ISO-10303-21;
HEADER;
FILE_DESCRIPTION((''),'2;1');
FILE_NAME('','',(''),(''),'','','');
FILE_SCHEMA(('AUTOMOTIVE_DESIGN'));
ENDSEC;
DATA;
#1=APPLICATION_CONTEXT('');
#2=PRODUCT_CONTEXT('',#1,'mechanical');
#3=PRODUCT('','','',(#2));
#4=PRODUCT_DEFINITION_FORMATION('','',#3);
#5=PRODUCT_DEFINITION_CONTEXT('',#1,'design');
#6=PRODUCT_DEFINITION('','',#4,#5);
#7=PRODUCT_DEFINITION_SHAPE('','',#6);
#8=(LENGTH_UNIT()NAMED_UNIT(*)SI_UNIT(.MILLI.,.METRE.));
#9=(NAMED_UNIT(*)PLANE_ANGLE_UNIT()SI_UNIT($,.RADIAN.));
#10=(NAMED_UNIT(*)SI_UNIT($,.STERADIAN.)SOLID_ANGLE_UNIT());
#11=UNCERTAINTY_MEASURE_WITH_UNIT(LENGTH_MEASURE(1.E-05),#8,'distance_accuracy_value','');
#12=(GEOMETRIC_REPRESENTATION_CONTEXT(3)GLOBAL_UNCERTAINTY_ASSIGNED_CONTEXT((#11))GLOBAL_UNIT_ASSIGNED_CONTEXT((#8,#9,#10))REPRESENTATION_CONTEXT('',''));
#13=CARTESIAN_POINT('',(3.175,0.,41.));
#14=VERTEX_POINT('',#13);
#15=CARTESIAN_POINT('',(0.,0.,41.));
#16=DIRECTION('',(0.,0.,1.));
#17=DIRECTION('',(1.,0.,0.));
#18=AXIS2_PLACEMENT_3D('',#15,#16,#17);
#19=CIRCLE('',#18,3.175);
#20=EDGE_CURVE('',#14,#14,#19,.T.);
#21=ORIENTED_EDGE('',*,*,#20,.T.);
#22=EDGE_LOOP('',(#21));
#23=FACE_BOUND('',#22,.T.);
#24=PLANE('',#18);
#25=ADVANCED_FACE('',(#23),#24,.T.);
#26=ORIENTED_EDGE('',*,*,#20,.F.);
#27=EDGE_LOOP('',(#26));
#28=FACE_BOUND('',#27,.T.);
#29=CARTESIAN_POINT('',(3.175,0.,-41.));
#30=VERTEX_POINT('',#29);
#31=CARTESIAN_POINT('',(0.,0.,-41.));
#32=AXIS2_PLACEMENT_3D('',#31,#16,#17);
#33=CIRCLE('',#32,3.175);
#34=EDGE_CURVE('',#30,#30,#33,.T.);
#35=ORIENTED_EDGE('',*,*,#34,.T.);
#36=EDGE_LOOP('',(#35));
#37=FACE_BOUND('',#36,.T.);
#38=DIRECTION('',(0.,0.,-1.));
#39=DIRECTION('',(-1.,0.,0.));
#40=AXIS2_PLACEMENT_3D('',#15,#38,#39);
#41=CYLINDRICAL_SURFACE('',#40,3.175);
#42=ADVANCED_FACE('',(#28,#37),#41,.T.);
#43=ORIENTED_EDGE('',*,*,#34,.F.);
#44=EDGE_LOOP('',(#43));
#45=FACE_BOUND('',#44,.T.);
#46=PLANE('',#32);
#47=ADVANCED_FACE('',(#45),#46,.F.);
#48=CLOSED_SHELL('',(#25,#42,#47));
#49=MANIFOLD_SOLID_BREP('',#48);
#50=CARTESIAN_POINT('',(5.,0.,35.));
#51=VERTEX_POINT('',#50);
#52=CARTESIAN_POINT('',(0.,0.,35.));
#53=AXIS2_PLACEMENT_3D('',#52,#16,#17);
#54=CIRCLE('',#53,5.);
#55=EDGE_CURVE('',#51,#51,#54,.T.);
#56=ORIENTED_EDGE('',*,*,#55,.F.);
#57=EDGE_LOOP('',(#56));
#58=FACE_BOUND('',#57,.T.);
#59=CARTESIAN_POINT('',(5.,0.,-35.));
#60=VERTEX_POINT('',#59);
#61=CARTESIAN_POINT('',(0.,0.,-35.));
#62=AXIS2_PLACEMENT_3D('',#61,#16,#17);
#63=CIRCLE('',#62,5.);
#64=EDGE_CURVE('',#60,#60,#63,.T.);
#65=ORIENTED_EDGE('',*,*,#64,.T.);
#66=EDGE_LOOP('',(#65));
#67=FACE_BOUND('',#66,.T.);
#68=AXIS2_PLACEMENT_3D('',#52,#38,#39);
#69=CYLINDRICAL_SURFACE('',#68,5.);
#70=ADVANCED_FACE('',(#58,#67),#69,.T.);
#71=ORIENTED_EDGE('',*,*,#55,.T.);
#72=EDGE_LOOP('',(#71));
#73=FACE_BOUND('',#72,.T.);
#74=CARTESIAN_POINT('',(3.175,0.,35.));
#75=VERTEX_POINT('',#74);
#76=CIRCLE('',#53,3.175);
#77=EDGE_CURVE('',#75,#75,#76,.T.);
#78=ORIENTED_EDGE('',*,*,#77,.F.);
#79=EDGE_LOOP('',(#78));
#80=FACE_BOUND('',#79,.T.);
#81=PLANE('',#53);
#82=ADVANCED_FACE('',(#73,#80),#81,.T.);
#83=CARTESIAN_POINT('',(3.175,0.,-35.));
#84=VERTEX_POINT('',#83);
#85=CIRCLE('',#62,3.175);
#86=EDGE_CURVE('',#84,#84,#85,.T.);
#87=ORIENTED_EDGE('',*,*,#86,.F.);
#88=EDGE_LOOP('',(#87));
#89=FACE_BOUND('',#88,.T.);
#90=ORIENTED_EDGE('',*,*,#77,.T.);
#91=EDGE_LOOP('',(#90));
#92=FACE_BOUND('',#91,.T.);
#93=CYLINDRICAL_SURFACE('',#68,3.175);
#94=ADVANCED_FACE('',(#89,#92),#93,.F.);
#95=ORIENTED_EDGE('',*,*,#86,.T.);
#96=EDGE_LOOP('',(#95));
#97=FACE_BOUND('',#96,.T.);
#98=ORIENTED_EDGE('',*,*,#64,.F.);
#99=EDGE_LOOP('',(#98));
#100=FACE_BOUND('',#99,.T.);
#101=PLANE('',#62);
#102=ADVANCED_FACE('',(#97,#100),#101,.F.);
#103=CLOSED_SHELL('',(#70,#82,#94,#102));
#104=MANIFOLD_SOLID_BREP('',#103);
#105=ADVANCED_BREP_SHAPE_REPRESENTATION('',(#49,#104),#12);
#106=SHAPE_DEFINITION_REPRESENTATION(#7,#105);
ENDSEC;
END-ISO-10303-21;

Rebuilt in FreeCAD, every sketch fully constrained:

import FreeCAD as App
import Part
import Sketcher
from FreeCAD import Vector
Q = App.Units.Quantity

doc = App.newDocument("Part")
body = doc.addObject("PartDesign::Body", "Body")

sketch1 = body.newObject("Sketcher::SketchObject", "Sketch")
sketch1.AttachmentSupport = (doc.getObject("XY_Plane"), [""])
sketch1.MapMode = "FlatFace"
sketch1.addGeometry(Part.Circle(Vector(0, 0, 0), Vector(0, 0, 1), 3.2), False)
sketch1.addConstraint(Sketcher.Constraint("Coincident", 0, 3, -1, 1))
sketch1.addConstraint(Sketcher.Constraint("Diameter", 0, Q("6.35 mm")))
pad1 = body.newObject("PartDesign::Pad", "Pad")
pad1.Profile = sketch1
pad1.Length = 82
pad1.Midplane = True
body2 = doc.addObject("PartDesign::Body", "Body001")

sketch2 = body2.newObject("Sketcher::SketchObject", "Sketch001")
sketch2.AttachmentSupport = (doc.getObject("XY_Plane001"), [""])
sketch2.MapMode = "FlatFace"
sketch2.addGeometry(Part.Circle(Vector(0, 0, 0), Vector(0, 0, 1), 5), False)
sketch2.addGeometry(Part.Circle(Vector(0, 0, 0), Vector(0, 0, 1), 3.2), False)
sketch2.addConstraint(Sketcher.Constraint("Coincident", 0, 3, -1, 1))
sketch2.addConstraint(Sketcher.Constraint("Coincident", 1, 3, -1, 1))
sketch2.addConstraint(Sketcher.Constraint("Diameter", 0, Q("10 mm")))
sketch2.addConstraint(Sketcher.Constraint("Diameter", 1, Q("6.35 mm")))
pad2 = body2.newObject("PartDesign::Pad", "Pad001")
pad2.Profile = sketch2
pad2.Length = 70
pad2.Midplane = True

doc.recompute()
